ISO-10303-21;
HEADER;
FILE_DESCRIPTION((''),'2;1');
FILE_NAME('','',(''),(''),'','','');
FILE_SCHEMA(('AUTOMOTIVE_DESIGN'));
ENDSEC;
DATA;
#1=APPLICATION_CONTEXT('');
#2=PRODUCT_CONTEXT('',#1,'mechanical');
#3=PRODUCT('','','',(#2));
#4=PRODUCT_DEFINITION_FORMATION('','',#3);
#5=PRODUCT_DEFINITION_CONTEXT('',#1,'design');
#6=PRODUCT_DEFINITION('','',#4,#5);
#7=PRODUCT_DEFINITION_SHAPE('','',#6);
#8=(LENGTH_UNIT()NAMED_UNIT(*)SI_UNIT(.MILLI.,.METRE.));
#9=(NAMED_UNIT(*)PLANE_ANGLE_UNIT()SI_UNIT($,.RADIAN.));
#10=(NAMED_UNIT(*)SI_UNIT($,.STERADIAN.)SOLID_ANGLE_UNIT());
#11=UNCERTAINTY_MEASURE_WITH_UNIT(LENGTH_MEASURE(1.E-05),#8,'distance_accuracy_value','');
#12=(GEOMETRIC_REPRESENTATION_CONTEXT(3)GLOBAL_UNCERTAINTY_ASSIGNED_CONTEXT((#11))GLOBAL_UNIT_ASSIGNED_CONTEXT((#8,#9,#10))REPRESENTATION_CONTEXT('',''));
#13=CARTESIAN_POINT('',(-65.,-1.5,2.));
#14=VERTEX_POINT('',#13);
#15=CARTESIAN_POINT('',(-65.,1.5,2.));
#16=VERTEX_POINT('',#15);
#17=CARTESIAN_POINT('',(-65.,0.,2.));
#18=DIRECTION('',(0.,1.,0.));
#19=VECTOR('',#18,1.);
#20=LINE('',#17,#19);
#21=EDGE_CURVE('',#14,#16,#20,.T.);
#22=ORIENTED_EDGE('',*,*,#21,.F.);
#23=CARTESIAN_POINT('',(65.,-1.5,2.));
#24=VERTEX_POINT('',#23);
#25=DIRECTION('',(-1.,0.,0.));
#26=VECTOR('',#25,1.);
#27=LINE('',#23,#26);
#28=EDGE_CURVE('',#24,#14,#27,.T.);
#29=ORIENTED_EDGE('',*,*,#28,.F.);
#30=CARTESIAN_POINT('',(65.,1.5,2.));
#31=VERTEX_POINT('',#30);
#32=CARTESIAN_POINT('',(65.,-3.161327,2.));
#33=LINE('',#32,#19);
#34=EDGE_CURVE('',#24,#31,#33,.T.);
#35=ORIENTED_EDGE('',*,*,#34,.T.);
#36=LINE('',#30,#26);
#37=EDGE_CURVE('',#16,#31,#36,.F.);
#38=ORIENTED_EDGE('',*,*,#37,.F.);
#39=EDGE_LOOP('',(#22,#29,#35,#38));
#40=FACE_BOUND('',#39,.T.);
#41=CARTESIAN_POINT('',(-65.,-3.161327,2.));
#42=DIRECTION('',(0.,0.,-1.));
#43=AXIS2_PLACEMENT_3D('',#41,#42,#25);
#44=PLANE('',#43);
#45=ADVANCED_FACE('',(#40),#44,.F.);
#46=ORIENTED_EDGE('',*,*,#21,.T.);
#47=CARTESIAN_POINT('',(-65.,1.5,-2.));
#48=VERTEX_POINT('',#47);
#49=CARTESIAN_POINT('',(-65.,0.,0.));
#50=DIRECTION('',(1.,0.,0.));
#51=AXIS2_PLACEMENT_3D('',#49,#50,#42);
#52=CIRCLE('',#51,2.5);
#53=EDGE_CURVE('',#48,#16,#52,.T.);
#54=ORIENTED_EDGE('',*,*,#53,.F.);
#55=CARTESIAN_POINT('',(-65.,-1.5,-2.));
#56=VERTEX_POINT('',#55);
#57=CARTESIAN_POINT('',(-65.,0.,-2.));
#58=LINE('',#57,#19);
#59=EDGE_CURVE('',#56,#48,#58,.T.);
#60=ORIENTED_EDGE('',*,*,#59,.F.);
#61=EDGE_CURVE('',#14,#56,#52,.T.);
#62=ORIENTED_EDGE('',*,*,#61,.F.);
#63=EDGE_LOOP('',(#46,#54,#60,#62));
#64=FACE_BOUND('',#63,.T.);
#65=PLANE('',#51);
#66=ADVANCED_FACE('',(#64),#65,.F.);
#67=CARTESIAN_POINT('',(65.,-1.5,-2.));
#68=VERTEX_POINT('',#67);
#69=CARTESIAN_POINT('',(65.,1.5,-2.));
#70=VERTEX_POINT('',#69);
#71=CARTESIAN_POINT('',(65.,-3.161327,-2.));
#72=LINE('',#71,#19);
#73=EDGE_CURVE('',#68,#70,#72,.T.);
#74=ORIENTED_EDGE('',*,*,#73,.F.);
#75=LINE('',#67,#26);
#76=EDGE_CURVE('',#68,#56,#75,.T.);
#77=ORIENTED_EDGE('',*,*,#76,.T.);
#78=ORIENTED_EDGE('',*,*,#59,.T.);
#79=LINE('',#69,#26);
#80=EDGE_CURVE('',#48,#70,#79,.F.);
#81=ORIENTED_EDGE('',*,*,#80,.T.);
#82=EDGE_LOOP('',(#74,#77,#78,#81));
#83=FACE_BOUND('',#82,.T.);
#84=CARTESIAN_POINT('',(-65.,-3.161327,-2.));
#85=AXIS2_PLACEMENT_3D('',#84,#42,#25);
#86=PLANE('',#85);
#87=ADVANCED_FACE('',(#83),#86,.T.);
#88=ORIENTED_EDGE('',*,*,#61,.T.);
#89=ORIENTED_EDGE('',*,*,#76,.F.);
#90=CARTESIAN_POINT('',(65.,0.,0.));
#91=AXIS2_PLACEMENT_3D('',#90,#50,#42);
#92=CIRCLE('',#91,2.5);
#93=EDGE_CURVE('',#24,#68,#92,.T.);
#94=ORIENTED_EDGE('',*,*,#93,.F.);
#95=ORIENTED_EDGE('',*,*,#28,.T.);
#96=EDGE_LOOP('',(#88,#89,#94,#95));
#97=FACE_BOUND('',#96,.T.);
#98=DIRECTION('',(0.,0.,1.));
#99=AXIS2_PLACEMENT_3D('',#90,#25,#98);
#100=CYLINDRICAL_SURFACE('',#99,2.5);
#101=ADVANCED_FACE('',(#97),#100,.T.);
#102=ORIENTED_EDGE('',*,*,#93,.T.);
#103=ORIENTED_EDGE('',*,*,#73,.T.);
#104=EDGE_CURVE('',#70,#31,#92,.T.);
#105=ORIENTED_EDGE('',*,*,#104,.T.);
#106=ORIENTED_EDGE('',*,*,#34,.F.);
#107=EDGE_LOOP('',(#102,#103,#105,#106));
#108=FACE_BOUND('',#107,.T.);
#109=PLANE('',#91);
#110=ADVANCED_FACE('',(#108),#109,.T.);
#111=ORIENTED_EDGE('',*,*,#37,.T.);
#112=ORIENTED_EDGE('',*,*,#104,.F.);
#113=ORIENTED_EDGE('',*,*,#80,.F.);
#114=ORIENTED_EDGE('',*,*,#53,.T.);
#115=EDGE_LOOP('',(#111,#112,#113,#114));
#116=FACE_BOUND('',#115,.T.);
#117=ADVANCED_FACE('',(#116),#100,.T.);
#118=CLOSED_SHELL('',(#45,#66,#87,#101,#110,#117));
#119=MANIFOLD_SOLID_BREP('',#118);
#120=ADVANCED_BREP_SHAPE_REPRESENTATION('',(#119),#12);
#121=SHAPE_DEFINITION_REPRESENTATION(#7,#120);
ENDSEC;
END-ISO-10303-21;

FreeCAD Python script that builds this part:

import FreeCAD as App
import Part
import Sketcher

V = App.Vector
Q = App.Units.Quantity

doc = App.newDocument("Part")
body = doc.addObject("PartDesign::Body", "Body")

sketch1 = body.newObject("Sketcher::SketchObject", "Sketch")
sketch1.AttachmentSupport = (doc.getObject("YZ_Plane"), [""])
sketch1.MapMode = "FlatFace"
sketch1.addGeometry(Part.Circle(V(0, 0, 0), V(0, 0, 1), 2.5), False)
sketch1.addConstraint([
    Sketcher.Constraint("Coincident", 0, 3, -1, 1),
    Sketcher.Constraint("Diameter", 0, Q("5 mm")),
])
pad1 = body.newObject("PartDesign::Pad", "Pad")
pad1.Profile = sketch1
pad1.Length = 130
pad1.Midplane = True

sketch2 = body.newObject("Sketcher::SketchObject", "Sketch001")
sketch2.AttachmentSupport = (doc.getObject("YZ_Plane"), [""])
sketch2.MapMode = "FlatFace"
sketch2.AttachmentOffset = App.Placement(V(0, 0, 65), App.Rotation())
sketch2.addGeometry([
    Part.LineSegment(V(-3.2, 5.5, 0), V(-3.2, 2, 0)),
    Part.LineSegment(V(-3.2, 2, 0), V(4, 2, 0)),
    Part.LineSegment(V(4, 2, 0), V(4, 5.5, 0)),
    Part.LineSegment(V(4, 5.5, 0), V(-3.2, 5.5, 0)),
], False)
sketch2.addConstraint([
    Sketcher.Constraint("Coincident", 0, 2, 1, 1),
    Sketcher.Constraint("Coincident", 1, 2, 2, 1),
    Sketcher.Constraint("Coincident", 2, 2, 3, 1),
    Sketcher.Constraint("Coincident", 3, 2, 0, 1),
    Sketcher.Constraint("Vertical", 0),
    Sketcher.Constraint("Horizontal", 1),
    Sketcher.Constraint("Vertical", 2),
    Sketcher.Constraint("Horizontal", 3),
    Sketcher.Constraint("DistanceY", -1, 1, 0, 2, Q("2 mm")),
    Sketcher.Constraint("DistanceX", 1, 1, 1, 2, Q("7.122508 mm")),
    Sketcher.Constraint("DistanceY", 0, 2, 0, 1, Q("3.466033 mm")),
    Sketcher.Constraint("DistanceX", -1, 1, 1, 2, Q("3.961181 mm")),
])
pocket1 = body.newObject("PartDesign::Pocket", "Pocket")
pocket1.Profile = sketch2
pocket1.Length = 130
doc.recompute()

mirrored = body.newObject("PartDesign::Mirrored", "Mirrored")
mirrored.Originals = [pocket1]
mirrored.MirrorPlane = (doc.getObject("XY_Plane"), [""])
body.Tip = mirrored

doc.recompute()
